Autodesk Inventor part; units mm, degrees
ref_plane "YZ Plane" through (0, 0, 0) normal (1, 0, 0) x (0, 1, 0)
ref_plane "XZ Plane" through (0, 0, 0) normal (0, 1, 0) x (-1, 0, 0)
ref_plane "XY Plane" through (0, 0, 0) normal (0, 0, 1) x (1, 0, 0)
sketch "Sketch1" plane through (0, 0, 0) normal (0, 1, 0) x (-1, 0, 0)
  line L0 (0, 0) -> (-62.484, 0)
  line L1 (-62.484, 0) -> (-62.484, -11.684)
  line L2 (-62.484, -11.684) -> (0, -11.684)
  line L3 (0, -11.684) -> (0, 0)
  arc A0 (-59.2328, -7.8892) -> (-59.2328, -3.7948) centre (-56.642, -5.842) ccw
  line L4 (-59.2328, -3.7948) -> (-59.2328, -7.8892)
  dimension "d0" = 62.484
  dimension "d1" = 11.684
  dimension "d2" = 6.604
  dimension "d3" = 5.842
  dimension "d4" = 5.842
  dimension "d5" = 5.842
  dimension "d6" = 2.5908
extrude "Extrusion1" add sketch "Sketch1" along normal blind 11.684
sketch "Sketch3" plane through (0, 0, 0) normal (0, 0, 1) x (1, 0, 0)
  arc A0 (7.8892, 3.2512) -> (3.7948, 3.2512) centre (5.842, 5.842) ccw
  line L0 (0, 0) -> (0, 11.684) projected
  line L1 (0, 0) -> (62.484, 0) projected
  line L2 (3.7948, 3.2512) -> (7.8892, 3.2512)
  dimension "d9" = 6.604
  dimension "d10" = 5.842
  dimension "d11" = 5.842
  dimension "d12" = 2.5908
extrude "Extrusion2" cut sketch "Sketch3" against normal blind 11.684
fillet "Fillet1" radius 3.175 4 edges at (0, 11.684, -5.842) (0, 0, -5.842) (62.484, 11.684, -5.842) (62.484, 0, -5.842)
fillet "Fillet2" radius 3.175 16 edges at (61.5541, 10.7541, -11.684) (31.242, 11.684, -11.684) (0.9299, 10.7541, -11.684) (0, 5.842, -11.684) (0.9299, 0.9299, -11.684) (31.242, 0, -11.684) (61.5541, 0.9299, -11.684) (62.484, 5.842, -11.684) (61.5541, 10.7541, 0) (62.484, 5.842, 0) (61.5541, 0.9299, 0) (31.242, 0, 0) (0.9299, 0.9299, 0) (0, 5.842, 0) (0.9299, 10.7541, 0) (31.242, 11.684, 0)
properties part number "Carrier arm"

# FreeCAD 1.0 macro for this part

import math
import FreeCAD as App
import Part
import Sketcher
from FreeCAD import Vector
Q = App.Units.Quantity


def edges_at(feature, points):
    """Names of the edges that pass closest to the given points."""
    edges = feature.Shape.Edges
    near = lambda p: min(range(len(edges)), key=lambda i: edges[i].distToShape(Part.Vertex(*p))[0])
    return sorted({f"Edge{near(p) + 1}" for p in points})


def add_polygon(sketch, points):
    """Adds a closed chain of lines whose ends are joined by coincident constraints."""
    first, n = sketch.GeometryCount, len(points)
    for a, b in zip(points, points[1:] + points[:1]):
        sketch.addGeometry(Part.LineSegment(App.Vector(*a, 0), App.Vector(*b, 0)), False)
    for i in range(n):
        sketch.addConstraint(Sketcher.Constraint("Coincident", first + i, 2, first + (i + 1) % n, 1))

doc = App.newDocument("Part")
params = doc.addObject("Spreadsheet::Sheet", "Params")
for row, (alias, value) in enumerate([
    ("sketch1_radius", "0.13 in"),
    ("sketch1_width", "2.46 in"),
    ("sketch1_height", "0.46 in"),
    ("sketch1_width2", "0.102 in"),
    ("pad1_length", "0.46 in"),
    ("sketch2_radius", "0.13 in"),
    ("pocket1_length", "0.46 in"),
    ("fillet_radius", "0.125 in"),
    ("fillet2_radius", "0.125 in"),
], start=1):
    params.set(f"A{row}", alias)
    params.set(f"B{row}", "=" + value)
    params.setAlias(f"B{row}", alias)

body = doc.addObject("PartDesign::Body", "Body")

# Sketch on XZ plane
sketch1 = body.newObject("Sketcher::SketchObject", "Sketch")
sketch1.AttachmentSupport = (doc.getObject("XZ_Plane"), [""])
sketch1.MapMode = "FlatFace"
add_polygon(sketch1, [(0, -11.7), (0, 0), (62.5, 0), (62.5, -11.7)])  # lines 0-3
sketch1.addGeometry(Part.ArcOfCircle(Part.Circle(Vector(56.6, -5.8, 0), Vector(0, 0, 1), 3.3), math.radians(38), math.radians(322)), False)  # 4
sketch1.addGeometry(Part.LineSegment(Vector(59.2, -7.9, 0), Vector(59.2, -3.8, 0)), False)  # 5
sketch1.addConstraint(Sketcher.Constraint("Coincident", 4, 1, 5, 2))
sketch1.addConstraint(Sketcher.Constraint("Coincident", 5, 1, 4, 2))
sketch1.addConstraint(Sketcher.Constraint("Vertical", 0))
sketch1.addConstraint(Sketcher.Constraint("Horizontal", 1))
sketch1.addConstraint(Sketcher.Constraint("Vertical", 2))
sketch1.addConstraint(Sketcher.Constraint("Horizontal", 3))
sketch1.addConstraint(Sketcher.Constraint("Vertical", 5))
sketch1.addConstraint(Sketcher.Constraint("Coincident", 0, 2, -1, 1))
sketch1.addConstraint(Sketcher.Constraint("Radius", 4, Q("0.13 in")))
sketch1.addConstraint(Sketcher.Constraint("DistanceX", 1, 1, 1, 2, Q("2.46 in")))
sketch1.addConstraint(Sketcher.Constraint("DistanceY", 0, 1, 0, 2, Q("0.46 in")))
sketch1.addConstraint(Sketcher.Constraint("DistanceY", 4, 3, -1, 1, Q("0.23 in")))
sketch1.addConstraint(Sketcher.Constraint("DistanceX", 4, 3, 1, 2, Q("0.23 in")))
sketch1.addConstraint(Sketcher.Constraint("DistanceX", 4, 3, 4, 1, Q("0.102 in")))
sketch1.setExpression("Constraints[12]", "Params.sketch1_radius")
sketch1.setExpression("Constraints[13]", "Params.sketch1_width")
sketch1.setExpression("Constraints[14]", "Params.sketch1_height")
sketch1.setExpression("Constraints[17]", "Params.sketch1_width2")
pad1 = body.newObject("PartDesign::Pad", "Pad")
pad1.Profile = sketch1
pad1.setExpression("Length", "Params.pad1_length")
pad1.Reversed = True

# Sketch on XY plane
sketch2 = body.newObject("Sketcher::SketchObject", "Sketch001")
sketch2.AttachmentSupport = (doc.getObject("XY_Plane"), [""])
sketch2.MapMode = "FlatFace"
sketch2.addGeometry(Part.LineSegment(Vector(3.8, 3.3, 0), Vector(7.9, 3.3, 0)), False)
sketch2.addGeometry(Part.ArcOfCircle(Part.Circle(Vector(5.8, 5.8, 0), Vector(0, 0, 1), 3.3), math.radians(-52), math.radians(232)), False)
sketch2.addConstraint(Sketcher.Constraint("Coincident", 0, 1, 1, 2))
sketch2.addConstraint(Sketcher.Constraint("Coincident", 1, 1, 0, 2))
sketch2.addConstraint(Sketcher.Constraint("Horizontal", 0))
sketch2.addConstraint(Sketcher.Constraint("Radius", 1, Q("0.13 in")))
sketch2.addConstraint(Sketcher.Constraint("DistanceX", -1, 1, 1, 3, Q("0.23 in")))
sketch2.addConstraint(Sketcher.Constraint("DistanceY", -1, 1, 1, 3, Q("0.23 in")))
sketch2.addConstraint(Sketcher.Constraint("DistanceY", 0, 1, 1, 3, Q("0.102 in")))
sketch2.setExpression("Constraints[3]", "Params.sketch2_radius")
pocket1 = body.newObject("PartDesign::Pocket", "Pocket")
pocket1.Profile = sketch2
pocket1.setExpression("Length", "Params.pocket1_length")
doc.recompute()

fillet = body.newObject("PartDesign::Fillet", "Fillet")
fillet.Base = (pocket1, edges_at(pocket1, [
    (0, 11.684, -5.842),
    (0, 0, -5.842),
    (62.484, 11.684, -5.842),
    (62.484, 0, -5.842),
]))
fillet.setExpression("Radius", "Params.fillet_radius")
doc.recompute()

fillet2 = body.newObject("PartDesign::Fillet", "Fillet001")
fillet2.Base = (fillet, edges_at(fillet, [
    (61.554, 10.754, -11.684),
    (31.242, 11.684, -11.684),
    (0.93, 10.754, -11.684),
    (0, 5.842, -11.684),
    (0.93, 0.93, -11.684),
    (31.242, 0, -11.684),
    (61.554, 0.93, -11.684),
    (62.484, 5.842, -11.684),
    (61.554, 10.754, 0),
    (62.484, 5.842, 0),
    (61.554, 0.93, 0),
    (31.242, 0, 0),
    (0.93, 0.93, 0),
    (0, 5.842, 0),
    (0.93, 10.754, 0),
    (31.242, 11.684, 0),
]))
fillet2.setExpression("Radius", "Params.fillet2_radius")

doc.recompute()
